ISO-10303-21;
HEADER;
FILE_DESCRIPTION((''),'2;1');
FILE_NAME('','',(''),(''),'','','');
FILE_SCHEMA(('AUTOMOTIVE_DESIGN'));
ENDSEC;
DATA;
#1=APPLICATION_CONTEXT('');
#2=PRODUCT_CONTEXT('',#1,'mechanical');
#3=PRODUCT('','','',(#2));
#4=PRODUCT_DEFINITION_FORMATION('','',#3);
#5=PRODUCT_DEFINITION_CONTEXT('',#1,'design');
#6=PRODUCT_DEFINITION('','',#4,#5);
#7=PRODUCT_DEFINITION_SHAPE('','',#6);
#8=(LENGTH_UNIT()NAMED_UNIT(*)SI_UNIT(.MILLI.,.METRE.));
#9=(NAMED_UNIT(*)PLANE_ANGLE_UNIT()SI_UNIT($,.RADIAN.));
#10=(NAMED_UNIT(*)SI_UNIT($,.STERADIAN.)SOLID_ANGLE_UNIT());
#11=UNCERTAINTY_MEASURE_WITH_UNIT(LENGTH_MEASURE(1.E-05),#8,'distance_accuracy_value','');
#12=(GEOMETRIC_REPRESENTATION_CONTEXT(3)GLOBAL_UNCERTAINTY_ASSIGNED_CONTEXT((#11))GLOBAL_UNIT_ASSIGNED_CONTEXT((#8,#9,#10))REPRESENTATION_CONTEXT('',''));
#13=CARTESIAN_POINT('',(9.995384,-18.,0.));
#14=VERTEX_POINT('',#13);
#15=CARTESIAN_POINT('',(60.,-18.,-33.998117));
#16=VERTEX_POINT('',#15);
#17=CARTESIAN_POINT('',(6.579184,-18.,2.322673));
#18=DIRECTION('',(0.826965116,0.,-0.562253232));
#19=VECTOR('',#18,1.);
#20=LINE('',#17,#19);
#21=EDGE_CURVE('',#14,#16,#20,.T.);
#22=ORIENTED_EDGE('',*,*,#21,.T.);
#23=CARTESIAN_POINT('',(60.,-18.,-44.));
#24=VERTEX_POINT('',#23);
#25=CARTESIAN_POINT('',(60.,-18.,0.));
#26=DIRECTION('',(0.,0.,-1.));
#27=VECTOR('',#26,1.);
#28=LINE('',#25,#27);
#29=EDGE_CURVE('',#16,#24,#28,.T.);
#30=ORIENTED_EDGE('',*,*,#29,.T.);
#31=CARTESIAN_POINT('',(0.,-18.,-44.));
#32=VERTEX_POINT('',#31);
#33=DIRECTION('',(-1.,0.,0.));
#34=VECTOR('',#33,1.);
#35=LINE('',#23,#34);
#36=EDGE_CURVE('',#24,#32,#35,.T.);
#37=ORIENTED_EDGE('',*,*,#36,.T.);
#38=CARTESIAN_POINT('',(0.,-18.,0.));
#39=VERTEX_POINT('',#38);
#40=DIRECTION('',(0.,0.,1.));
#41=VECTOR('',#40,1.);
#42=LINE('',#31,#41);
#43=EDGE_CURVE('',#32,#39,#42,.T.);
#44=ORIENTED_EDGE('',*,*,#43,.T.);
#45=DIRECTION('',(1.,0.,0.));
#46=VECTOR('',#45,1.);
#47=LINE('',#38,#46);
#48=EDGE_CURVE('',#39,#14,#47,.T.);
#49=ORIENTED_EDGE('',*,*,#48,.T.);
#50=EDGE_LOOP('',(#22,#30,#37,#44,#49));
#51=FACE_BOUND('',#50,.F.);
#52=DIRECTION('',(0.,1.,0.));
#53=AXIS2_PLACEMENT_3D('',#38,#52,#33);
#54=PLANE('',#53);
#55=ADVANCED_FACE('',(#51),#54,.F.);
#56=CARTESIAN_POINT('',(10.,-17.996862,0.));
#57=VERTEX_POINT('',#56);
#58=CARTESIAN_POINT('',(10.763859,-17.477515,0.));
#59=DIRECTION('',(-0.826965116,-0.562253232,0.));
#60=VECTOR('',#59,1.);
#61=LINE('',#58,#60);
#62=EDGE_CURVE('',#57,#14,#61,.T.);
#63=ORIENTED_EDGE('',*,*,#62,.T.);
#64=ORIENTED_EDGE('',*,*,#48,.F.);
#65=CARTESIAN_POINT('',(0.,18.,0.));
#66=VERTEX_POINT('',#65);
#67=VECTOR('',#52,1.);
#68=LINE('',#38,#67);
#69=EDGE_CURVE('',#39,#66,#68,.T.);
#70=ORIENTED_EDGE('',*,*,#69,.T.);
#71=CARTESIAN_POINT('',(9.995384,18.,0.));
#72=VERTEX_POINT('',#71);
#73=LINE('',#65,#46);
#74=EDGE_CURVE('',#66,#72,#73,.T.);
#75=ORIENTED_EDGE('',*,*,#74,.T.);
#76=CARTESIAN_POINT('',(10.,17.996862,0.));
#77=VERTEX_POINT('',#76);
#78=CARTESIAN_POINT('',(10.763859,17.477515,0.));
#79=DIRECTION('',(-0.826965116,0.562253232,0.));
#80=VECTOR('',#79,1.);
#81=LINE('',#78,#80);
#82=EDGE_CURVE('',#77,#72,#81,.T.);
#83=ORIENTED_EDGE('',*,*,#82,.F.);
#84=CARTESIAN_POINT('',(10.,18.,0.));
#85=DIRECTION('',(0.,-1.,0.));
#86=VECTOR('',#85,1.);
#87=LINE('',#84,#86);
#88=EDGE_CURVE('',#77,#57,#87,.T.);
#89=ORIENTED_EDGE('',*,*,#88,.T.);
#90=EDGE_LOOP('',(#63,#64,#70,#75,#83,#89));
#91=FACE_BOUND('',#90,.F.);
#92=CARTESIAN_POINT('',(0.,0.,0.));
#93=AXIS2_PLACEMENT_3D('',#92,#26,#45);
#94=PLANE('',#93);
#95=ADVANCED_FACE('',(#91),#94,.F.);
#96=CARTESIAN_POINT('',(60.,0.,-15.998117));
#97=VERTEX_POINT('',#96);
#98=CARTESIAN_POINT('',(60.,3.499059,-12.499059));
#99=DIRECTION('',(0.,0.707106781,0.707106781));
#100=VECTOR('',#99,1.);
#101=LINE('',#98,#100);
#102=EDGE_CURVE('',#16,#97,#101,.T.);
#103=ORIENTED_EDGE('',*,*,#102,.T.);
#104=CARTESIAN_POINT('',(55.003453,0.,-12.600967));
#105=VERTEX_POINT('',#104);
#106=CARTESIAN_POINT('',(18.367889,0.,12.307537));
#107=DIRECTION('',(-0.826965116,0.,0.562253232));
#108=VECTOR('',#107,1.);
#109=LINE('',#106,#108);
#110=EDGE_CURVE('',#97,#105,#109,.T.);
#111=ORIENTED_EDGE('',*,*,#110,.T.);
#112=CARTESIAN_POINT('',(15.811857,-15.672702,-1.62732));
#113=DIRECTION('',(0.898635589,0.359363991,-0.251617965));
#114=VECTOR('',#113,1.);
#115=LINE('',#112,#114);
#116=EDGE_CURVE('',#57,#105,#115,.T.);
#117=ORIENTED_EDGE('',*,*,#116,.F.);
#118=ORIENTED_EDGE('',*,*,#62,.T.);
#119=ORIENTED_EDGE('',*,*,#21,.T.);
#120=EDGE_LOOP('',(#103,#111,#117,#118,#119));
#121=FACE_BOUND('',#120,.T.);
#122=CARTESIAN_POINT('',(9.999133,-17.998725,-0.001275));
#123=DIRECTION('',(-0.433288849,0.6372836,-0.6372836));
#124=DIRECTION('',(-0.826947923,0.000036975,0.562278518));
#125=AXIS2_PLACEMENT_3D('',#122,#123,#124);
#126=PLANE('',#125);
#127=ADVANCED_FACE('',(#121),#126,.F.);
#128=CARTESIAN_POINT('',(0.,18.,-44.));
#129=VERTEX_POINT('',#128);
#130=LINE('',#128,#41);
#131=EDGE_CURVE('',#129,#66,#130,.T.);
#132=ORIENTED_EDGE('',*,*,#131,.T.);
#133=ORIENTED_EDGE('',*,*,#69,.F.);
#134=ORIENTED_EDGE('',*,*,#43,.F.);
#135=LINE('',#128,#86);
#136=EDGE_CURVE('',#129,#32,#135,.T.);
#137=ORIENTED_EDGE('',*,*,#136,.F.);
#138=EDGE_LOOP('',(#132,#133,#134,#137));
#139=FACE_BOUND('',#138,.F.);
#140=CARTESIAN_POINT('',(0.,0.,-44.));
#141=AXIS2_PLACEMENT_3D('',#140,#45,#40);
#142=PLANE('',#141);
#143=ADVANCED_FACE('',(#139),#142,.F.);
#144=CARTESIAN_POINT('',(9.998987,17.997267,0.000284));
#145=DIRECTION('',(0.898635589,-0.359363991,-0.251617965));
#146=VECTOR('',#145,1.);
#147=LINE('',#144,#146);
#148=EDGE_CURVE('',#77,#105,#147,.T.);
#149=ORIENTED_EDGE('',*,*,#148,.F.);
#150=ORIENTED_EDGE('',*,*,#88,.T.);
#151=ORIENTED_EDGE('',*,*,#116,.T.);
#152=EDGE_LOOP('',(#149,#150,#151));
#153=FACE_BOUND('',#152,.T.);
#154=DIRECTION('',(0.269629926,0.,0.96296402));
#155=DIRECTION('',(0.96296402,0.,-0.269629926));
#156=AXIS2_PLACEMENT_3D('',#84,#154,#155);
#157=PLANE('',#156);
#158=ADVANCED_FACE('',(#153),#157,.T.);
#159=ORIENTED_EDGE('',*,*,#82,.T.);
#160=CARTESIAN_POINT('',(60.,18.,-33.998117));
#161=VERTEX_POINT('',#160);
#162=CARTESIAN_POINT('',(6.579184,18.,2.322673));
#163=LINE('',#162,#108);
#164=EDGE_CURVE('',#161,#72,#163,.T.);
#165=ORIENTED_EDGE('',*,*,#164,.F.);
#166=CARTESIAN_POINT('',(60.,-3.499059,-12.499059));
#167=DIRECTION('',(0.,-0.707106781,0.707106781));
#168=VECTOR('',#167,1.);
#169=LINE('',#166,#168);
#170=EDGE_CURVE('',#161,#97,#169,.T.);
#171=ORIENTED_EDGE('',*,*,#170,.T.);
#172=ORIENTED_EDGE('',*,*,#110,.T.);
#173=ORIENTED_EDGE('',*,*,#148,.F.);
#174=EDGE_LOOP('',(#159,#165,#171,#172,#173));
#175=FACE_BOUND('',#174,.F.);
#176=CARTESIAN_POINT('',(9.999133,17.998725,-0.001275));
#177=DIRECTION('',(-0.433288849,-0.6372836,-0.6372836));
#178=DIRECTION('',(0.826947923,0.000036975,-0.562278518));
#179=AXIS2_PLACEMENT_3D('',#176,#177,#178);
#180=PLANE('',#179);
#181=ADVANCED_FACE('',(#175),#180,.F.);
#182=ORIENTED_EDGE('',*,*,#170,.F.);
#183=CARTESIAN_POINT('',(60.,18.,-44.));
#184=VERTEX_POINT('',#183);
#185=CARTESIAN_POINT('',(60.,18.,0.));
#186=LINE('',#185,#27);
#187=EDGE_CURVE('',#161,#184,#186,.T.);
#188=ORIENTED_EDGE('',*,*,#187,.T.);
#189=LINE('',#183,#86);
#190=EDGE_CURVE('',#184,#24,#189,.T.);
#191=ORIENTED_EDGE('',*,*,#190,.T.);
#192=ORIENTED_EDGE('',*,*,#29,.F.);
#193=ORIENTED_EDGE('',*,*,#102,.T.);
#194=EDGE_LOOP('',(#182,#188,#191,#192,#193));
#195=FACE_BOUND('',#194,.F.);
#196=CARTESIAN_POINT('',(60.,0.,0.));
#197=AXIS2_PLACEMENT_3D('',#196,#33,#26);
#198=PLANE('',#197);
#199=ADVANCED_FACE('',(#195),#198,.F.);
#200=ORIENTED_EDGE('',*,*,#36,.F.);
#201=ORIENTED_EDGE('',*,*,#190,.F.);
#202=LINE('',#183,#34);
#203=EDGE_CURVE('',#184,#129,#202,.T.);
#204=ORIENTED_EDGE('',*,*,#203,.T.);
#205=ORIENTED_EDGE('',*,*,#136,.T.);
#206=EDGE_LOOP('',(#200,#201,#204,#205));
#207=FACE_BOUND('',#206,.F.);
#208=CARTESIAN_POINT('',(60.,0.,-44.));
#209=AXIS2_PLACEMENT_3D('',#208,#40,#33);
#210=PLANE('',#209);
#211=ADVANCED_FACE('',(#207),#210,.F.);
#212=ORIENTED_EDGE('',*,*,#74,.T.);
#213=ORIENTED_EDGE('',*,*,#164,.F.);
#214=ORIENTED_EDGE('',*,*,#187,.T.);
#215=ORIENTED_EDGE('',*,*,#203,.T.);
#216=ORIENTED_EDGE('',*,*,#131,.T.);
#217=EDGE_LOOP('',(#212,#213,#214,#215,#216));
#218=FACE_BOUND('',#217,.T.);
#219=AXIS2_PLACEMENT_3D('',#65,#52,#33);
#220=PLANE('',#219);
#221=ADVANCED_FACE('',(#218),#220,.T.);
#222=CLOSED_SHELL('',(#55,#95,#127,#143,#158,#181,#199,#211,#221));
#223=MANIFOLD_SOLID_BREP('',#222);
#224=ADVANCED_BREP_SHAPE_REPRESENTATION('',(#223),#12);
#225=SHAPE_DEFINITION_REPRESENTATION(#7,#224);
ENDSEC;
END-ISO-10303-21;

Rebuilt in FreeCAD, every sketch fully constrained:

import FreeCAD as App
import Part
import Sketcher
from FreeCAD import Vector


def add_polygon(sketch, points):
    """Adds a closed chain of lines whose ends are joined by coincident constraints."""
    first, n = sketch.GeometryCount, len(points)
    for a, b in zip(points, points[1:] + points[:1]):
        sketch.addGeometry(Part.LineSegment(App.Vector(*a, 0), App.Vector(*b, 0)), False)
    for i in range(n):
        sketch.addConstraint(Sketcher.Constraint("Coincident", first + i, 2, first + (i + 1) % n, 1))

doc = App.newDocument("Part")
body = doc.addObject("PartDesign::Body", "Body")

# Sketch on XZ plane
sketch1 = body.newObject("Sketcher::SketchObject", "Sketch")
sketch1.AttachmentSupport = (doc.getObject("XZ_Plane"), [""])
sketch1.MapMode = "FlatFace"
add_polygon(sketch1, [(0, -44), (0, 0), (60, 0), (60, -44)])  # lines 0-3
sketch1.addConstraint([
    Sketcher.Constraint("Vertical", 0),
    Sketcher.Constraint("Horizontal", 1),
    Sketcher.Constraint("Vertical", 2),
    Sketcher.Constraint("Horizontal", 3),
    Sketcher.Constraint("Coincident", 0, 2, -1, 1),
    Sketcher.Constraint("DistanceX", 1, 1, 1, 2, 60.0),
    Sketcher.Constraint("DistanceY", 0, 1, 0, 2, 44.0),
])
pad1 = body.newObject("PartDesign::Pad", "Pad")
pad1.Profile = sketch1
pad1.Length = 36
pad1.Midplane = True

# Sketch on XZ plane
sketch2 = body.newObject("Sketcher::SketchObject", "Sketch001")
sketch2.AttachmentSupport = (doc.getObject("XZ_Plane"), [""])
sketch2.MapMode = "FlatFace"
sketch2.AttachmentOffset = App.Placement(Vector(0, 0, -18), App.Rotation())
add_polygon(sketch2, [(60, -14), (10, 0), (60, 0)])  # lines 0-2
sketch2.addConstraint([
    Sketcher.Constraint("Horizontal", 1),
    Sketcher.Constraint("Vertical", 2),
    Sketcher.Constraint("PointOnObject", 0, 2, -1),
    Sketcher.Constraint("DistanceX", -1, 1, 0, 2, 10.0),
    Sketcher.Constraint("DistanceX", 1, 1, 1, 2, 50.0),
    Sketcher.Constraint("DistanceY", 2, 2, 2, 1, 14.0),
])
pocket1 = body.newObject("PartDesign::Pocket", "Pocket")
pocket1.Profile = sketch2
pocket1.Length = 40
pocket1.Reversed = True

# Sketch on an angled plane
sketch3 = body.newObject("Sketcher::SketchObject", "Sketch002")
sketch3.Placement = App.Placement(Vector(10, 18, 0), App.Rotation(Vector(0.826947923, 0.000036975, -0.562278518), Vector(0.358354442, -0.770629361, 0.526984329), Vector(-0.433288849, -0.6372836, -0.6372836), "ZXY"))
add_polygon(sketch3, [(-15, 29), (-15, -12), (94, -12), (94, 29)])  # lines 0-3
sketch3.addConstraint([
    Sketcher.Constraint("Vertical", 0),
    Sketcher.Constraint("Horizontal", 1),
    Sketcher.Constraint("Vertical", 2),
    Sketcher.Constraint("Horizontal", 3),
    Sketcher.Constraint("DistanceX", 1, 1, 1, 2, 108.8713),
    Sketcher.Constraint("DistanceY", 0, 2, 0, 1, 41.1384),
    Sketcher.Constraint("DistanceX", -1, 1, 1, 2, 93.717),
    Sketcher.Constraint("DistanceY", 0, 2, -1, 1, 12.3218),
])
pocket2 = body.newObject("PartDesign::Pocket", "Pocket001")
pocket2.Profile = sketch3
pocket2.Length = 40
doc.recompute()

mirrored = body.newObject("PartDesign::Mirrored", "Mirrored")
mirrored.Originals = [pocket2]
mirrored.MirrorPlane = (doc.getObject("XZ_Plane"), [""])
body.Tip = mirrored

doc.recompute()
